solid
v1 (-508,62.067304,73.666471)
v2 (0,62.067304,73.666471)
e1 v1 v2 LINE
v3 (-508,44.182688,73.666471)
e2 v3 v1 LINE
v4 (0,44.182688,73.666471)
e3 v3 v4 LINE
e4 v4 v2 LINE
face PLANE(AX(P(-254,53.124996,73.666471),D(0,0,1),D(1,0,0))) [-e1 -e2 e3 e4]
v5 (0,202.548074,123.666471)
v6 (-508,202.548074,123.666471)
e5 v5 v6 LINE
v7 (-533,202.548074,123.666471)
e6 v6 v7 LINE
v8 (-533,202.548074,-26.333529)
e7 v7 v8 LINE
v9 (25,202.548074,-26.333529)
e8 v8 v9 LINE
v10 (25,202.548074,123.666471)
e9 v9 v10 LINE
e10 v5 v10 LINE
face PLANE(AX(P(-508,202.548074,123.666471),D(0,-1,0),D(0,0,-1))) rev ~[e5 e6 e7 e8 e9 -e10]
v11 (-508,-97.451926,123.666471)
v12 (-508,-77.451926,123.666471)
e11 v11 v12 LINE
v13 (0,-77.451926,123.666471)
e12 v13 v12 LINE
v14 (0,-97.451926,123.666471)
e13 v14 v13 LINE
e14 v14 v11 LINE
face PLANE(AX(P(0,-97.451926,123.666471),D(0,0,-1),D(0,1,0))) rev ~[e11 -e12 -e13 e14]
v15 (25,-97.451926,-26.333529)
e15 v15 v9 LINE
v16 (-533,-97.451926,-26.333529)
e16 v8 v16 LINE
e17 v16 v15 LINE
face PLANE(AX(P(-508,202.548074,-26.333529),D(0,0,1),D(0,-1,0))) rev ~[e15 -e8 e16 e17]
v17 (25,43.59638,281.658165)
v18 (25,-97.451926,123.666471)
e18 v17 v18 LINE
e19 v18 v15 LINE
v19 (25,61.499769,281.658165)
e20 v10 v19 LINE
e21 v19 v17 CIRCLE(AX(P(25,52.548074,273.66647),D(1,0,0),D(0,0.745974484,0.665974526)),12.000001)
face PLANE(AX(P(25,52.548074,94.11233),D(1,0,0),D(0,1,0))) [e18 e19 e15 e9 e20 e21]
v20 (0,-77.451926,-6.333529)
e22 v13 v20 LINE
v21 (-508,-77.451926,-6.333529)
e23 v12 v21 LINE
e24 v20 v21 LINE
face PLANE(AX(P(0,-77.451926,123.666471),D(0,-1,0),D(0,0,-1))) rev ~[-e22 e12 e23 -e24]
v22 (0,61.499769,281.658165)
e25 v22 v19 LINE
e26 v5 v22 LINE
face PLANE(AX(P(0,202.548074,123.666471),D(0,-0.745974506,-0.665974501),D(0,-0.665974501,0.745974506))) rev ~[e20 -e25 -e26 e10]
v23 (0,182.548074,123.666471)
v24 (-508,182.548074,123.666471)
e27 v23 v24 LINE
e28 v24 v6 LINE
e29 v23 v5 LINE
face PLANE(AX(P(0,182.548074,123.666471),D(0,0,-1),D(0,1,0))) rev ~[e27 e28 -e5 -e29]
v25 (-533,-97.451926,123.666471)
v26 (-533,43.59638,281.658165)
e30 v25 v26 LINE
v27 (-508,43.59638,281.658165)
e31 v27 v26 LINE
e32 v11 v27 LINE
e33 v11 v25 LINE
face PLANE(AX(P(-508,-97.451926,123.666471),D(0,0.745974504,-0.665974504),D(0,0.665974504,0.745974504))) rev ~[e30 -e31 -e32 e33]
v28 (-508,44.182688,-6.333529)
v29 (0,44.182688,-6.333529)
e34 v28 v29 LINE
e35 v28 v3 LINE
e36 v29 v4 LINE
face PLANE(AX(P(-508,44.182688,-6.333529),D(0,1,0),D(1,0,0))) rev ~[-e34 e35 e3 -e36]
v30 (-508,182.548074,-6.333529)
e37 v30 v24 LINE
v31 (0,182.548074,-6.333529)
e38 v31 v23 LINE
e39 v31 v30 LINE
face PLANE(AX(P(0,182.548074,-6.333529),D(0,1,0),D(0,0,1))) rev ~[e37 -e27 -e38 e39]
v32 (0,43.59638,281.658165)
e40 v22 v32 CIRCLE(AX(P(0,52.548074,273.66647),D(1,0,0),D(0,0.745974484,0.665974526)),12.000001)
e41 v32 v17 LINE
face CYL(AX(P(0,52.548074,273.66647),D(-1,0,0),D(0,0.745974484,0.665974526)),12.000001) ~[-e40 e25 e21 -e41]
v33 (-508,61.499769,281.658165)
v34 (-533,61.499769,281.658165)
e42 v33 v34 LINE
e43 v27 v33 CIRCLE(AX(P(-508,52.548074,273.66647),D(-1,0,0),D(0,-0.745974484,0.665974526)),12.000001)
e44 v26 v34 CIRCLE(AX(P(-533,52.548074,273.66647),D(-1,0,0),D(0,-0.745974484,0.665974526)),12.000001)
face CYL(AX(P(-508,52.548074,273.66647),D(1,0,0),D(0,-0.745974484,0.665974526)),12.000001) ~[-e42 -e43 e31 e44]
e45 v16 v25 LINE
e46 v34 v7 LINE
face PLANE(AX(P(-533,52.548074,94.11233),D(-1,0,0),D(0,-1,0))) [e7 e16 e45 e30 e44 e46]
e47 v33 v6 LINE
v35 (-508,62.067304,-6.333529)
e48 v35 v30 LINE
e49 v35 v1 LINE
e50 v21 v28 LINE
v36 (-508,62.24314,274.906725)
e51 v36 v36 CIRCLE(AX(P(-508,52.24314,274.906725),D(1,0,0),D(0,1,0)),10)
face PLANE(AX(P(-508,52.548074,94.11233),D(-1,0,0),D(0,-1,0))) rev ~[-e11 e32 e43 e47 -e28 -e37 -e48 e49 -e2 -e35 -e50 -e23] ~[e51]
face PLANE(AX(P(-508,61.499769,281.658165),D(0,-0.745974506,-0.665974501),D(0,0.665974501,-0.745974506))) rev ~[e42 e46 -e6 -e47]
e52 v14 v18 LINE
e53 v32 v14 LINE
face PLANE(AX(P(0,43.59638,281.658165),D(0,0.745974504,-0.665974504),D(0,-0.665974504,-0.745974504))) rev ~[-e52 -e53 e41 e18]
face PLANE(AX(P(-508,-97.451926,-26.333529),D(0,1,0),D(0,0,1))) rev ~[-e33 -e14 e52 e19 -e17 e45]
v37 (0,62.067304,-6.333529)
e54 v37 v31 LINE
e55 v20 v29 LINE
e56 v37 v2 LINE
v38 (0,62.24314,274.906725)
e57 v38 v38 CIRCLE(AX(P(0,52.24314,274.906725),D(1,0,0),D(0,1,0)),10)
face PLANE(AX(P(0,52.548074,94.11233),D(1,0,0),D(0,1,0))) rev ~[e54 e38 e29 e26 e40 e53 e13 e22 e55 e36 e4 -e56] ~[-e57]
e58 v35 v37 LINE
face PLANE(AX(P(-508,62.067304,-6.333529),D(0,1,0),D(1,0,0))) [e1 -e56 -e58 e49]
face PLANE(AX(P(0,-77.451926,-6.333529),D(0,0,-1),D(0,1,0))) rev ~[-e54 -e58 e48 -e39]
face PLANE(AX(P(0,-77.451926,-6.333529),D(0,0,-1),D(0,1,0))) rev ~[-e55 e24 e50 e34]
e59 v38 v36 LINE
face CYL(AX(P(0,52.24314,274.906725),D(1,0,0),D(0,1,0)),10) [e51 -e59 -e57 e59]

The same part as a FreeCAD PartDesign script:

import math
import FreeCAD as App
import Part
import Sketcher

V = App.Vector


def add_polygon(sketch, points):
    """Adds a closed chain of lines whose ends are joined by coincident constraints."""
    first, n = sketch.GeometryCount, len(points)
    for a, b in zip(points, points[1:] + points[:1]):
        sketch.addGeometry(Part.LineSegment(App.Vector(*a, 0), App.Vector(*b, 0)), False)
    for i in range(n):
        sketch.addConstraint(Sketcher.Constraint("Coincident", first + i, 2, first + (i + 1) % n, 1))

doc = App.newDocument("Part")
params = doc.addObject("Spreadsheet::Sheet", "Params")
for row, (alias, value) in enumerate([
    ("sketch1_radius", "12.000001 mm"),
    ("sketch1_width", "300 mm"),
    ("sketch1_height", "150 mm"),
    ("pad1_length", "25 mm"),
    ("sketch2_width", "20 mm"),
    ("sketch2_width2", "300 mm"),
    ("sketch2_height", "150 mm"),
    ("sketch2_height2", "130 mm"),
    ("pad2_length", "508 mm"),
    ("sketch3_radius", "12.000001 mm"),
    ("sketch3_width", "300 mm"),
    ("sketch3_height", "150 mm"),
    ("pad3_length", "25 mm"),
    ("sketch4_diameter", "20 mm"),
    ("pad4_length", "508 mm"),
    ("sketch5_width", "508 mm"),
    ("pad5_length", "80 mm"),
], start=1):
    params.set(f"A{row}", alias)
    params.set(f"B{row}", "=" + value)
    params.setAlias(f"B{row}", alias)

body = doc.addObject("PartDesign::Body", "Body")

sketch1 = body.newObject("Sketcher::SketchObject", "Sketch")
sketch1.AttachmentSupport = (doc.getObject("YZ_Plane"), [""])
sketch1.MapMode = "FlatFace"
sketch1.addGeometry([
    Part.LineSegment(V(-97.451926, 123.666471, 0), V(-97.451926, -26.333529, 0)),
    Part.LineSegment(V(-97.451926, -26.333529, 0), V(202.548074, -26.333529, 0)),
    Part.LineSegment(V(202.548074, -26.333529, 0), V(202.548074, 123.666471, 0)),
    Part.LineSegment(V(202.548074, 123.666471, 0), V(61.499769, 281.658165, 0)),
    Part.ArcOfCircle(Part.Circle(V(52.548074, 273.66647, 0), V(0, 0, 1), 12.000001), math.radians(41.757132), math.radians(138.242868)),
    Part.LineSegment(V(43.59638, 281.658165, 0), V(-97.451926, 123.666471, 0)),
], False)
sketch1.addConstraint([
    Sketcher.Constraint("Coincident", 0, 2, 1, 1),
    Sketcher.Constraint("Coincident", 1, 2, 2, 1),
    Sketcher.Constraint("Coincident", 2, 2, 3, 1),
    Sketcher.Constraint("Tangent", 3, 2, 4, 1),
    Sketcher.Constraint("Tangent", 4, 2, 5, 1),
    Sketcher.Constraint("Coincident", 5, 2, 0, 1),
    Sketcher.Constraint("Vertical", 0),
    Sketcher.Constraint("Horizontal", 1),
    Sketcher.Constraint("Vertical", 2),
    Sketcher.Constraint("Horizontal", 3, 2, 4, 2),
    Sketcher.Constraint("Horizontal", 2, 2, 5, 2),
    Sketcher.Constraint("Radius", 4, 12.000001),
    Sketcher.Constraint("DistanceX", 1, 1, 1, 2, 300.0),
    Sketcher.Constraint("DistanceY", 0, 2, 0, 1, 150.0),
    Sketcher.Constraint("DistanceY", 0, 2, 4, 3, 299.999999),
    Sketcher.Constraint("DistanceY", -1, 1, 4, 3, 273.66647),
    Sketcher.Constraint("DistanceX", -1, 1, 3, 2, 61.499769),
])
sketch1.setExpression("Constraints[11]", "Params.sketch1_radius")
sketch1.setExpression("Constraints[12]", "Params.sketch1_width")
sketch1.setExpression("Constraints[13]", "Params.sketch1_height")
pad1 = body.newObject("PartDesign::Pad", "Pad")
pad1.Profile = sketch1
pad1.setExpression("Length", "Params.pad1_length")

sketch2 = body.newObject("Sketcher::SketchObject", "Sketch001")
sketch2.AttachmentSupport = (doc.getObject("YZ_Plane"), [""])
sketch2.MapMode = "FlatFace"
add_polygon(sketch2, [(182.548074, 123.666471), (202.548074, 123.666471), (202.548074, -26.333529), (-97.451926, -26.333529), (-97.451926, 123.666471), (-77.451926, 123.666471), (-77.451926, -6.333529), (182.548074, -6.333529)])
sketch2.addConstraint([
    Sketcher.Constraint("Horizontal", 0),
    Sketcher.Constraint("Vertical", 1),
    Sketcher.Constraint("Horizontal", 2),
    Sketcher.Constraint("Vertical", 3),
    Sketcher.Constraint("Horizontal", 4),
    Sketcher.Constraint("Vertical", 5),
    Sketcher.Constraint("Horizontal", 6),
    Sketcher.Constraint("Vertical", 7),
    Sketcher.Constraint("Horizontal", 0, 2, 3, 2),
    Sketcher.Constraint("Equal", 0, 4),
    Sketcher.Constraint("DistanceX", 0, 1, 0, 2, 20.0),
    Sketcher.Constraint("DistanceX", 2, 2, 2, 1, 300.0),
    Sketcher.Constraint("DistanceY", 1, 2, 1, 1, 150.0),
    Sketcher.Constraint("DistanceY", 5, 2, 5, 1, 130.0),
    Sketcher.Constraint("DistanceY", -1, 1, 0, 2, 123.666471),
    Sketcher.Constraint("DistanceX", -1, 1, 0, 2, 202.548074),
])
sketch2.setExpression("Constraints[18]", "Params.sketch2_width")
sketch2.setExpression("Constraints[19]", "Params.sketch2_width2")
sketch2.setExpression("Constraints[20]", "Params.sketch2_height")
sketch2.setExpression("Constraints[21]", "Params.sketch2_height2")
pad2 = body.newObject("PartDesign::Pad", "Pad001")
pad2.Profile = sketch2
pad2.setExpression("Length", "Params.pad2_length")
pad2.Reversed = True

sketch3 = body.newObject("Sketcher::SketchObject", "Sketch002")
sketch3.AttachmentSupport = (doc.getObject("YZ_Plane"), [""])
sketch3.MapMode = "FlatFace"
sketch3.AttachmentOffset = App.Placement(V(0, 0, -508), App.Rotation())
sketch3.addGeometry([
    Part.LineSegment(V(-97.451926, 123.666471, 0), V(43.59638, 281.658165, 0)),
    Part.ArcOfCircle(Part.Circle(V(52.548074, 273.66647, 0), V(0, 0, 1), 12.000001), math.radians(41.757132), math.radians(138.242868)),
    Part.LineSegment(V(61.499769, 281.658165, 0), V(202.548074, 123.666471, 0)),
    Part.LineSegment(V(202.548074, 123.666471, 0), V(202.548074, -26.333529, 0)),
    Part.LineSegment(V(202.548074, -26.333529, 0), V(-97.451926, -26.333529, 0)),
    Part.LineSegment(V(-97.451926, -26.333529, 0), V(-97.451926, 123.666471, 0)),
], False)
sketch3.addConstraint([
    Sketcher.Constraint("Tangent", 0, 2, 1, 2),
    Sketcher.Constraint("Tangent", 1, 1, 2, 1),
    Sketcher.Constraint("Coincident", 2, 2, 3, 1),
    Sketcher.Constraint("Coincident", 3, 2, 4, 1),
    Sketcher.Constraint("Coincident", 4, 2, 5, 1),
    Sketcher.Constraint("Coincident", 5, 2, 0, 1),
    Sketcher.Constraint("Vertical", 3),
    Sketcher.Constraint("Horizontal", 4),
    Sketcher.Constraint("Vertical", 5),
    Sketcher.Constraint("Horizontal", 0, 2, 1, 1),
    Sketcher.Constraint("Horizontal", 2, 2, 5, 2),
    Sketcher.Constraint("Radius", 1, 12.000001),
    Sketcher.Constraint("DistanceX", 4, 2, 4, 1, 300.0),
    Sketcher.Constraint("DistanceY", 3, 2, 3, 1, 150.0),
    Sketcher.Constraint("DistanceY", 2, 2, 1, 3, 149.999999),
    Sketcher.Constraint("DistanceY", -1, 1, 1, 3, 273.66647),
    Sketcher.Constraint("DistanceX", -1, 1, 0, 2, 43.59638),
])
sketch3.setExpression("Constraints[11]", "Params.sketch3_radius")
sketch3.setExpression("Constraints[12]", "Params.sketch3_width")
sketch3.setExpression("Constraints[13]", "Params.sketch3_height")
pad3 = body.newObject("PartDesign::Pad", "Pad002")
pad3.Profile = sketch3
pad3.setExpression("Length", "Params.pad3_length")
pad3.Reversed = True

sketch4 = body.newObject("Sketcher::SketchObject", "Sketch003")
sketch4.AttachmentSupport = (doc.getObject("YZ_Plane"), [""])
sketch4.MapMode = "FlatFace"
sketch4.addGeometry(Part.Circle(V(52.24314, 274.906725, 0), V(0, 0, 1), 10), False)
sketch4.addConstraint([
    Sketcher.Constraint("Diameter", 0, 20.0),
    Sketcher.Constraint("DistanceX", -1, 1, 0, 3, 52.24314),
    Sketcher.Constraint("DistanceY", -1, 1, 0, 3, 274.906725),
])
sketch4.setExpression("Constraints[0]", "Params.sketch4_diameter")
pad4 = body.newObject("PartDesign::Pad", "Pad003")
pad4.Profile = sketch4
pad4.setExpression("Length", "Params.pad4_length")
pad4.Reversed = True

sketch5 = body.newObject("Sketcher::SketchObject", "Sketch004")
sketch5.AttachmentSupport = (doc.getObject("XY_Plane"), [""])
sketch5.MapMode = "FlatFace"
sketch5.AttachmentOffset = App.Placement(V(0, 0, -6.333529), App.Rotation())
add_polygon(sketch5, [(-508, 62.067304), (-508, 44.182688), (0, 44.182688), (0, 62.067304)])
sketch5.addConstraint([
    Sketcher.Constraint("Vertical", 0),
    Sketcher.Constraint("Horizontal", 1),
    Sketcher.Constraint("Vertical", 2),
    Sketcher.Constraint("Horizontal", 3),
    Sketcher.Constraint("PointOnObject", 1, 2, -2),
    Sketcher.Constraint("DistanceX", 1, 1, 1, 2, 508.0),
    Sketcher.Constraint("DistanceY", 0, 2, 0, 1, 17.884616),
    Sketcher.Constraint("DistanceY", -1, 1, 0, 2, 44.182688),
])
sketch5.setExpression("Constraints[9]", "Params.sketch5_width")
pad5 = body.newObject("PartDesign::Pad", "Pad004")
pad5.Profile = sketch5
pad5.setExpression("Length", "Params.pad5_length")

doc.recompute()
